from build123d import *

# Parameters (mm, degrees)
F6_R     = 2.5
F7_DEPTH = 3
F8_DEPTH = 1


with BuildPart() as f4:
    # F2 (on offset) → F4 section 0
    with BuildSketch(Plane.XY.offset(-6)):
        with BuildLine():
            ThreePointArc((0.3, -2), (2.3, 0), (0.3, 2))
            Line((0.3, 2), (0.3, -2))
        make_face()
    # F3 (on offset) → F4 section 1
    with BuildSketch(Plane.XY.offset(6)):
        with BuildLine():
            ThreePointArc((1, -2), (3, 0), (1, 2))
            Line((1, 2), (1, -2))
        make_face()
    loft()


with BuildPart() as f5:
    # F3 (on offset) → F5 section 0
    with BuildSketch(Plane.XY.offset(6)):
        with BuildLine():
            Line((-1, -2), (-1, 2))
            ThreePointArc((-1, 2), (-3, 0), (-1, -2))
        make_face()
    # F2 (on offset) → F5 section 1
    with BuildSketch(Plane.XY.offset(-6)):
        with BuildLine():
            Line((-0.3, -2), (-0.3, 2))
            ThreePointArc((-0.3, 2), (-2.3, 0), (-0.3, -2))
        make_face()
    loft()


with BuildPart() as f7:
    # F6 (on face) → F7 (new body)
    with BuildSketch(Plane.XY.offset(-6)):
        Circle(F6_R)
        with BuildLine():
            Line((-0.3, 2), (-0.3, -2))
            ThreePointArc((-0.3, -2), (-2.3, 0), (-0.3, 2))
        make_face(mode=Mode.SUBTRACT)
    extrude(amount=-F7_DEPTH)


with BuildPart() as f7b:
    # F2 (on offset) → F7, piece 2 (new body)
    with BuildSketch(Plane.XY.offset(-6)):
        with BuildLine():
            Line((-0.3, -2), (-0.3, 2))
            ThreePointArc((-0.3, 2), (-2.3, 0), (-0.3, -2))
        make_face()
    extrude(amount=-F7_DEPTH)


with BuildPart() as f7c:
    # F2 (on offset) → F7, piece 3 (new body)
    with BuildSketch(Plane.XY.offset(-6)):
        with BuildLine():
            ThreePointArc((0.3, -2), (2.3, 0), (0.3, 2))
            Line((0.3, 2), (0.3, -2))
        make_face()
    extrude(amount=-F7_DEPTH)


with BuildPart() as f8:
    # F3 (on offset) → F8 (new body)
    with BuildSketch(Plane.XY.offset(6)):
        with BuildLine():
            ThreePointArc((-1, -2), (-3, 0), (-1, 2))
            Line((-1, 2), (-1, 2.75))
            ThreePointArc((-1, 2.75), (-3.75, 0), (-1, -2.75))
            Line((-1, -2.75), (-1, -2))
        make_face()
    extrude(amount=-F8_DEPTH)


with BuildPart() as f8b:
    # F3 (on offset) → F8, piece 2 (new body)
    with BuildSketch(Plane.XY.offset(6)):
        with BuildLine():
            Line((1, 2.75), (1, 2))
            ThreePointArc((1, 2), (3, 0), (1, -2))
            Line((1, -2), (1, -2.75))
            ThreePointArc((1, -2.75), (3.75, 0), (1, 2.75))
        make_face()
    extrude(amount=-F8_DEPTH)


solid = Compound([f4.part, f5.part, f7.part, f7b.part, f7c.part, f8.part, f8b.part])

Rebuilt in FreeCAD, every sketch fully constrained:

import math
import FreeCAD as App
import Part
import Sketcher

V = App.Vector

doc = App.newDocument("Part")
body = doc.addObject("PartDesign::Body", "Body")

# Sketch on XY plane
sketch1 = doc.addObject("Sketcher::SketchObject", "Sketch")
body.addObject(sketch1)
sketch1.AttachmentSupport = (doc.XY_Plane, [""])
sketch1.MapMode = "FlatFace"
sketch1.AttachmentOffset = App.Placement(V(0, 0, -6), App.Rotation())
sketch1.addGeometry(Part.ArcOfCircle(Part.Circle(V(0.3, 0, 0), V(0, 0, 1), 2), math.radians(-90), math.radians(90)), False)
sketch1.addGeometry(Part.LineSegment(V(0.3, 2, 0), V(0.3, -2, 0)), False)
sketch1.addConstraint(Sketcher.Constraint("Coincident", 0, 1, 1, 2))
sketch1.addConstraint(Sketcher.Constraint("Coincident", 1, 1, 0, 2))
sketch1.addConstraint(Sketcher.Constraint("Vertical", 1))
sketch1.addConstraint(Sketcher.Constraint("PointOnObject", 0, 3, -1))
sketch1.addConstraint(Sketcher.Constraint("Radius", 0, 2.0))
sketch1.addConstraint(Sketcher.Constraint("DistanceX", -1, 1, 0, 3, 0.3))
sketch1.addConstraint(Sketcher.Constraint("DistanceX", -1, 1, 0, 1, 0.3))

# Sketch on XY plane
sketch2 = doc.addObject("Sketcher::SketchObject", "Sketch001")
body.addObject(sketch2)
sketch2.AttachmentSupport = (doc.XY_Plane, [""])
sketch2.MapMode = "FlatFace"
sketch2.AttachmentOffset = App.Placement(V(0, 0, 6), App.Rotation())
sketch2.addGeometry(Part.ArcOfCircle(Part.Circle(V(1, 0, 0), V(0, 0, 1), 2), math.radians(-90), math.radians(90)), False)
sketch2.addGeometry(Part.LineSegment(V(1, 2, 0), V(1, -2, 0)), False)
sketch2.addConstraint(Sketcher.Constraint("Coincident", 0, 1, 1, 2))
sketch2.addConstraint(Sketcher.Constraint("Coincident", 1, 1, 0, 2))
sketch2.addConstraint(Sketcher.Constraint("Vertical", 1))
sketch2.addConstraint(Sketcher.Constraint("PointOnObject", 0, 3, -1))
sketch2.addConstraint(Sketcher.Constraint("Radius", 0, 2.0))
sketch2.addConstraint(Sketcher.Constraint("DistanceX", -1, 1, 0, 3, 1.0))
sketch2.addConstraint(Sketcher.Constraint("DistanceX", -1, 1, 0, 1, 1.0))

additiveloft = doc.addObject("PartDesign::AdditiveLoft", "AdditiveLoft")
body.addObject(additiveloft)
additiveloft.Profile = sketch1
additiveloft.Sections = [sketch2]
body2 = doc.addObject("PartDesign::Body", "Body001")

# Sketch on XY plane
sketch3 = doc.addObject("Sketcher::SketchObject", "Sketch002")
body2.addObject(sketch3)
sketch3.AttachmentSupport = (doc.getObject("XY_Plane001"), [""])
sketch3.MapMode = "FlatFace"
sketch3.AttachmentOffset = App.Placement(V(0, 0, 6), App.Rotation())
sketch3.addGeometry(Part.LineSegment(V(-1, -2, 0), V(-1, 2, 0)), False)
sketch3.addGeometry(Part.ArcOfCircle(Part.Circle(V(-1, 0, 0), V(0, 0, 1), 2), math.radians(90), math.radians(270)), False)
sketch3.addConstraint(Sketcher.Constraint("Coincident", 0, 1, 1, 2))
sketch3.addConstraint(Sketcher.Constraint("Coincident", 1, 1, 0, 2))
sketch3.addConstraint(Sketcher.Constraint("Vertical", 0))
sketch3.addConstraint(Sketcher.Constraint("PointOnObject", 1, 3, -1))
sketch3.addConstraint(Sketcher.Constraint("Vertical", 1, 3, 0, 1))
sketch3.addConstraint(Sketcher.Constraint("Radius", 1, 2.0))
sketch3.addConstraint(Sketcher.Constraint("DistanceX", 1, 3, -1, 1, 1.0))

# Sketch on XY plane
sketch4 = doc.addObject("Sketcher::SketchObject", "Sketch003")
body2.addObject(sketch4)
sketch4.AttachmentSupport = (doc.getObject("XY_Plane001"), [""])
sketch4.MapMode = "FlatFace"
sketch4.AttachmentOffset = App.Placement(V(0, 0, -6), App.Rotation())
sketch4.addGeometry(Part.LineSegment(V(-0.3, -2, 0), V(-0.3, 2, 0)), False)
sketch4.addGeometry(Part.ArcOfCircle(Part.Circle(V(-0.3, 0, 0), V(0, 0, 1), 2), math.radians(90), math.radians(270)), False)
sketch4.addConstraint(Sketcher.Constraint("Coincident", 0, 1, 1, 2))
sketch4.addConstraint(Sketcher.Constraint("Coincident", 1, 1, 0, 2))
sketch4.addConstraint(Sketcher.Constraint("Vertical", 0))
sketch4.addConstraint(Sketcher.Constraint("PointOnObject", 1, 3, -1))
sketch4.addConstraint(Sketcher.Constraint("Vertical", 1, 3, 0, 1))
sketch4.addConstraint(Sketcher.Constraint("Radius", 1, 2.0))
sketch4.addConstraint(Sketcher.Constraint("DistanceX", 1, 3, -1, 1, 0.3))

additiveloft2 = doc.addObject("PartDesign::AdditiveLoft", "AdditiveLoft001")
body2.addObject(additiveloft2)
additiveloft2.Profile = sketch3
additiveloft2.Sections = [sketch4]
body3 = doc.addObject("PartDesign::Body", "Body002")

# Sketch on XY plane
sketch5 = doc.addObject("Sketcher::SketchObject", "Sketch004")
body3.addObject(sketch5)
sketch5.AttachmentSupport = (doc.getObject("XY_Plane002"), [""])
sketch5.MapMode = "FlatFace"
sketch5.AttachmentOffset = App.Placement(V(0, 0, -6), App.Rotation())
sketch5.addGeometry(Part.Circle(V(0, 0, 0), V(0, 0, 1), 2.5), False)
sketch5.addGeometry(Part.ArcOfCircle(Part.Circle(V(-0.3, 0, 0), V(0, 0, 1), 2), math.radians(90), math.radians(270)), False)
sketch5.addGeometry(Part.LineSegment(V(-0.3, 2, 0), V(-0.3, -2, 0)), False)
sketch5.addConstraint(Sketcher.Constraint("Coincident", 1, 1, 2, 1))
sketch5.addConstraint(Sketcher.Constraint("Coincident", 2, 2, 1, 2))
sketch5.addConstraint(Sketcher.Constraint("Vertical", 2))
sketch5.addConstraint(Sketcher.Constraint("Coincident", 0, 3, -1, 1))
sketch5.addConstraint(Sketcher.Constraint("PointOnObject", 1, 3, -1))
sketch5.addConstraint(Sketcher.Constraint("Diameter", 0, 5.0))
sketch5.addConstraint(Sketcher.Constraint("Radius", 1, 2.0))
sketch5.addConstraint(Sketcher.Constraint("DistanceX", 1, 3, -1, 1, 0.3))
sketch5.addConstraint(Sketcher.Constraint("DistanceX", 1, 1, -1, 1, 0.3))
pad1 = doc.addObject("PartDesign::Pad", "Pad")
body3.addObject(pad1)
pad1.Profile = sketch5
pad1.Length = 3
pad1.Reversed = True
body4 = doc.addObject("PartDesign::Body", "Body003")

# Sketch on XY plane
sketch6 = doc.addObject("Sketcher::SketchObject", "Sketch005")
body4.addObject(sketch6)
sketch6.AttachmentSupport = (doc.getObject("XY_Plane003"), [""])
sketch6.MapMode = "FlatFace"
sketch6.AttachmentOffset = App.Placement(V(0, 0, -6), App.Rotation())
sketch6.addGeometry(Part.LineSegment(V(-0.3, -2, 0), V(-0.3, 2, 0)), False)
sketch6.addGeometry(Part.ArcOfCircle(Part.Circle(V(-0.3, 0, 0), V(0, 0, 1), 2), math.radians(90), math.radians(270)), False)
sketch6.addConstraint(Sketcher.Constraint("Coincident", 0, 1, 1, 2))
sketch6.addConstraint(Sketcher.Constraint("Coincident", 1, 1, 0, 2))
sketch6.addConstraint(Sketcher.Constraint("Vertical", 0))
sketch6.addConstraint(Sketcher.Constraint("PointOnObject", 1, 3, -1))
sketch6.addConstraint(Sketcher.Constraint("Vertical", 1, 3, 0, 1))
sketch6.addConstraint(Sketcher.Constraint("Radius", 1, 2.0))
sketch6.addConstraint(Sketcher.Constraint("DistanceX", 1, 3, -1, 1, 0.3))
pad2 = doc.addObject("PartDesign::Pad", "Pad001")
body4.addObject(pad2)
pad2.Profile = sketch6
pad2.Length = 3
pad2.Reversed = True
body5 = doc.addObject("PartDesign::Body", "Body004")

# Sketch on XY plane
sketch7 = doc.addObject("Sketcher::SketchObject", "Sketch006")
body5.addObject(sketch7)
sketch7.AttachmentSupport = (doc.getObject("XY_Plane004"), [""])
sketch7.MapMode = "FlatFace"
sketch7.AttachmentOffset = App.Placement(V(0, 0, -6), App.Rotation())
sketch7.addGeometry(Part.ArcOfCircle(Part.Circle(V(0.3, 0, 0), V(0, 0, 1), 2), math.radians(-90), math.radians(90)), False)
sketch7.addGeometry(Part.LineSegment(V(0.3, 2, 0), V(0.3, -2, 0)), False)
sketch7.addConstraint(Sketcher.Constraint("Coincident", 0, 1, 1, 2))
sketch7.addConstraint(Sketcher.Constraint("Coincident", 1, 1, 0, 2))
sketch7.addConstraint(Sketcher.Constraint("Vertical", 1))
sketch7.addConstraint(Sketcher.Constraint("PointOnObject", 0, 3, -1))
sketch7.addConstraint(Sketcher.Constraint("Radius", 0, 2.0))
sketch7.addConstraint(Sketcher.Constraint("DistanceX", -1, 1, 0, 3, 0.3))
sketch7.addConstraint(Sketcher.Constraint("DistanceX", -1, 1, 0, 1, 0.3))
pad3 = doc.addObject("PartDesign::Pad", "Pad002")
body5.addObject(pad3)
pad3.Profile = sketch7
pad3.Length = 3
pad3.Reversed = True
body6 = doc.addObject("PartDesign::Body", "Body005")

# Sketch on XY plane
sketch8 = doc.addObject("Sketcher::SketchObject", "Sketch007")
body6.addObject(sketch8)
sketch8.AttachmentSupport = (doc.getObject("XY_Plane005"), [""])
sketch8.MapMode = "FlatFace"
sketch8.AttachmentOffset = App.Placement(V(0, 0, 6), App.Rotation())
sketch8.addGeometry(Part.ArcOfCircle(Part.Circle(V(-1, 0, 0), V(0, 0, 1), 2), math.radians(90), math.radians(270)), False)
sketch8.addGeometry(Part.LineSegment(V(-1, 2, 0), V(-1, 2.75, 0)), False)
sketch8.addGeometry(Part.ArcOfCircle(Part.Circle(V(-1, 0, 0), V(0, 0, 1), 2.75), math.radians(90), math.radians(270)), False)
sketch8.addGeometry(Part.LineSegment(V(-1, -2.75, 0), V(-1, -2, 0)), False)
sketch8.addConstraint(Sketcher.Constraint("Coincident", 0, 1, 1, 1))
sketch8.addConstraint(Sketcher.Constraint("Coincident", 1, 2, 2, 1))
sketch8.addConstraint(Sketcher.Constraint("Coincident", 2, 2, 3, 1))
sketch8.addConstraint(Sketcher.Constraint("Coincident", 3, 2, 0, 2))
sketch8.addConstraint(Sketcher.Constraint("Vertical", 1))
sketch8.addConstraint(Sketcher.Constraint("Vertical", 3))
sketch8.addConstraint(Sketcher.Constraint("Coincident", 2, 3, 0, 3))
sketch8.addConstraint(Sketcher.Constraint("Symmetric", 1, 2, 2, 2, -1))
sketch8.addConstraint(Sketcher.Constraint("Vertical", 2, 3, 0, 1))
sketch8.addConstraint(Sketcher.Constraint("Radius", 0, 2.0))
sketch8.addConstraint(Sketcher.Constraint("Radius", 2, 2.75))
sketch8.addConstraint(Sketcher.Constraint("DistanceX", 0, 3, -1, 1, 1.0))
pad4 = doc.addObject("PartDesign::Pad", "Pad003")
body6.addObject(pad4)
pad4.Profile = sketch8
pad4.Length = 1
pad4.Reversed = True
body7 = doc.addObject("PartDesign::Body", "Body006")

# Sketch on XY plane
sketch9 = doc.addObject("Sketcher::SketchObject", "Sketch008")
body7.addObject(sketch9)
sketch9.AttachmentSupport = (doc.getObject("XY_Plane006"), [""])
sketch9.MapMode = "FlatFace"
sketch9.AttachmentOffset = App.Placement(V(0, 0, 6), App.Rotation())
sketch9.addGeometry(Part.LineSegment(V(1, 2.75, 0), V(1, 2, 0)), False)
sketch9.addGeometry(Part.ArcOfCircle(Part.Circle(V(1, 0, 0), V(0, 0, 1), 2), math.radians(-90), math.radians(90)), False)
sketch9.addGeometry(Part.LineSegment(V(1, -2, 0), V(1, -2.75, 0)), False)
sketch9.addGeometry(Part.ArcOfCircle(Part.Circle(V(1, 0, 0), V(0, 0, 1), 2.75), math.radians(-90), math.radians(90)), False)
sketch9.addConstraint(Sketcher.Constraint("Coincident", 0, 2, 1, 2))
sketch9.addConstraint(Sketcher.Constraint("Coincident", 1, 1, 2, 1))
sketch9.addConstraint(Sketcher.Constraint("Coincident", 2, 2, 3, 1))
sketch9.addConstraint(Sketcher.Constraint("Coincident", 3, 2, 0, 1))
sketch9.addConstraint(Sketcher.Constraint("Vertical", 0))
sketch9.addConstraint(Sketcher.Constraint("Vertical", 2))
sketch9.addConstraint(Sketcher.Constraint("Coincident", 3, 3, 1, 3))
sketch9.addConstraint(Sketcher.Constraint("Symmetric", 0, 2, 1, 1, -1))
sketch9.addConstraint(Sketcher.Constraint("Vertical", 3, 3, 0, 2))
sketch9.addConstraint(Sketcher.Constraint("Radius", 1, 2.0))
sketch9.addConstraint(Sketcher.Constraint("Radius", 3, 2.75))
sketch9.addConstraint(Sketcher.Constraint("DistanceX", -1, 1, 1, 3, 1.0))
pad5 = doc.addObject("PartDesign::Pad", "Pad004")
body7.addObject(pad5)
pad5.Profile = sketch9
pad5.Length = 1
pad5.Reversed = True

doc.recompute()
